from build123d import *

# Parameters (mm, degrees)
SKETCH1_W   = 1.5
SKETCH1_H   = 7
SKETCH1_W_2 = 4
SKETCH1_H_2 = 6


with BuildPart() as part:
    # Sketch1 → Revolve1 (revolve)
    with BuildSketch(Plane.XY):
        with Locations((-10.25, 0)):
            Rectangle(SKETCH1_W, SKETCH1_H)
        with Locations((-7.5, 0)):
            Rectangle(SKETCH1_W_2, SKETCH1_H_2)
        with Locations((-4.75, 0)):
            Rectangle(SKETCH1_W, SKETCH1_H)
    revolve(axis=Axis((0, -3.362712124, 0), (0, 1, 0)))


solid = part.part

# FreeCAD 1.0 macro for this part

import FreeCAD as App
import Part
import Sketcher
Q = App.Units.Quantity


def add_polygon(sketch, points):
    """Adds a closed chain of lines whose ends are joined by coincident constraints."""
    first, n = sketch.GeometryCount, len(points)
    for a, b in zip(points, points[1:] + points[:1]):
        sketch.addGeometry(Part.LineSegment(App.Vector(*a, 0), App.Vector(*b, 0)), False)
    for i in range(n):
        sketch.addConstraint(Sketcher.Constraint("Coincident", first + i, 2, first + (i + 1) % n, 1))

doc = App.newDocument("Part")
body = doc.addObject("PartDesign::Body", "Body")

# Sketch on XY plane
sketch1 = body.newObject("Sketcher::SketchObject", "Sketch")
sketch1.AttachmentSupport = (doc.getObject("XY_Plane"), [""])
sketch1.MapMode = "FlatFace"
add_polygon(sketch1, [(-11, 3.5), (-11, -3.5), (-9.5, -3.5), (-9.5, -3), (-5.5, -3), (-5.5, -3.5), (-4, -3.5), (-4, 3.5), (-5.5, 3.5), (-5.5, 3), (-9.5, 3), (-9.5, 3.5)])  # lines 0-11
sketch1.addConstraint([
    Sketcher.Constraint("Vertical", 0),
    Sketcher.Constraint("Horizontal", 1),
    Sketcher.Constraint("Vertical", 2),
    Sketcher.Constraint("Horizontal", 3),
    Sketcher.Constraint("Vertical", 4),
    Sketcher.Constraint("Horizontal", 5),
    Sketcher.Constraint("Vertical", 6),
    Sketcher.Constraint("Horizontal", 7),
    Sketcher.Constraint("Vertical", 8),
    Sketcher.Constraint("Horizontal", 9),
    Sketcher.Constraint("Vertical", 10),
    Sketcher.Constraint("Horizontal", 11),
    Sketcher.Constraint("Symmetric", 4, 2, 7, 2, -1),
    Sketcher.Constraint("Symmetric", 2, 2, 9, 2, -1),
    Sketcher.Constraint("Horizontal", 1, 2, 4, 2),
    Sketcher.Constraint("Horizontal", 7, 2, 10, 2),
    Sketcher.Constraint("Equal", 1, 5),
    Sketcher.Constraint("DistanceX", 3, 1, 3, 2, Q("4 mm")),
    Sketcher.Constraint("DistanceY", 0, 2, 0, 1, Q("7 mm")),
    Sketcher.Constraint("DistanceX", 1, 1, 1, 2, Q("1.5 mm")),
    Sketcher.Constraint("DistanceY", 2, 1, 2, 2, Q("0.5 mm")),
    Sketcher.Constraint("DistanceX", 0, 2, -1, 1, Q("11 mm")),
])
revolution = body.newObject("PartDesign::Revolution", "Revolution")
revolution.Profile = sketch1
revolution.ReferenceAxis = (sketch1, ["V_Axis"])
revolution.Angle = 360

doc.recompute()
